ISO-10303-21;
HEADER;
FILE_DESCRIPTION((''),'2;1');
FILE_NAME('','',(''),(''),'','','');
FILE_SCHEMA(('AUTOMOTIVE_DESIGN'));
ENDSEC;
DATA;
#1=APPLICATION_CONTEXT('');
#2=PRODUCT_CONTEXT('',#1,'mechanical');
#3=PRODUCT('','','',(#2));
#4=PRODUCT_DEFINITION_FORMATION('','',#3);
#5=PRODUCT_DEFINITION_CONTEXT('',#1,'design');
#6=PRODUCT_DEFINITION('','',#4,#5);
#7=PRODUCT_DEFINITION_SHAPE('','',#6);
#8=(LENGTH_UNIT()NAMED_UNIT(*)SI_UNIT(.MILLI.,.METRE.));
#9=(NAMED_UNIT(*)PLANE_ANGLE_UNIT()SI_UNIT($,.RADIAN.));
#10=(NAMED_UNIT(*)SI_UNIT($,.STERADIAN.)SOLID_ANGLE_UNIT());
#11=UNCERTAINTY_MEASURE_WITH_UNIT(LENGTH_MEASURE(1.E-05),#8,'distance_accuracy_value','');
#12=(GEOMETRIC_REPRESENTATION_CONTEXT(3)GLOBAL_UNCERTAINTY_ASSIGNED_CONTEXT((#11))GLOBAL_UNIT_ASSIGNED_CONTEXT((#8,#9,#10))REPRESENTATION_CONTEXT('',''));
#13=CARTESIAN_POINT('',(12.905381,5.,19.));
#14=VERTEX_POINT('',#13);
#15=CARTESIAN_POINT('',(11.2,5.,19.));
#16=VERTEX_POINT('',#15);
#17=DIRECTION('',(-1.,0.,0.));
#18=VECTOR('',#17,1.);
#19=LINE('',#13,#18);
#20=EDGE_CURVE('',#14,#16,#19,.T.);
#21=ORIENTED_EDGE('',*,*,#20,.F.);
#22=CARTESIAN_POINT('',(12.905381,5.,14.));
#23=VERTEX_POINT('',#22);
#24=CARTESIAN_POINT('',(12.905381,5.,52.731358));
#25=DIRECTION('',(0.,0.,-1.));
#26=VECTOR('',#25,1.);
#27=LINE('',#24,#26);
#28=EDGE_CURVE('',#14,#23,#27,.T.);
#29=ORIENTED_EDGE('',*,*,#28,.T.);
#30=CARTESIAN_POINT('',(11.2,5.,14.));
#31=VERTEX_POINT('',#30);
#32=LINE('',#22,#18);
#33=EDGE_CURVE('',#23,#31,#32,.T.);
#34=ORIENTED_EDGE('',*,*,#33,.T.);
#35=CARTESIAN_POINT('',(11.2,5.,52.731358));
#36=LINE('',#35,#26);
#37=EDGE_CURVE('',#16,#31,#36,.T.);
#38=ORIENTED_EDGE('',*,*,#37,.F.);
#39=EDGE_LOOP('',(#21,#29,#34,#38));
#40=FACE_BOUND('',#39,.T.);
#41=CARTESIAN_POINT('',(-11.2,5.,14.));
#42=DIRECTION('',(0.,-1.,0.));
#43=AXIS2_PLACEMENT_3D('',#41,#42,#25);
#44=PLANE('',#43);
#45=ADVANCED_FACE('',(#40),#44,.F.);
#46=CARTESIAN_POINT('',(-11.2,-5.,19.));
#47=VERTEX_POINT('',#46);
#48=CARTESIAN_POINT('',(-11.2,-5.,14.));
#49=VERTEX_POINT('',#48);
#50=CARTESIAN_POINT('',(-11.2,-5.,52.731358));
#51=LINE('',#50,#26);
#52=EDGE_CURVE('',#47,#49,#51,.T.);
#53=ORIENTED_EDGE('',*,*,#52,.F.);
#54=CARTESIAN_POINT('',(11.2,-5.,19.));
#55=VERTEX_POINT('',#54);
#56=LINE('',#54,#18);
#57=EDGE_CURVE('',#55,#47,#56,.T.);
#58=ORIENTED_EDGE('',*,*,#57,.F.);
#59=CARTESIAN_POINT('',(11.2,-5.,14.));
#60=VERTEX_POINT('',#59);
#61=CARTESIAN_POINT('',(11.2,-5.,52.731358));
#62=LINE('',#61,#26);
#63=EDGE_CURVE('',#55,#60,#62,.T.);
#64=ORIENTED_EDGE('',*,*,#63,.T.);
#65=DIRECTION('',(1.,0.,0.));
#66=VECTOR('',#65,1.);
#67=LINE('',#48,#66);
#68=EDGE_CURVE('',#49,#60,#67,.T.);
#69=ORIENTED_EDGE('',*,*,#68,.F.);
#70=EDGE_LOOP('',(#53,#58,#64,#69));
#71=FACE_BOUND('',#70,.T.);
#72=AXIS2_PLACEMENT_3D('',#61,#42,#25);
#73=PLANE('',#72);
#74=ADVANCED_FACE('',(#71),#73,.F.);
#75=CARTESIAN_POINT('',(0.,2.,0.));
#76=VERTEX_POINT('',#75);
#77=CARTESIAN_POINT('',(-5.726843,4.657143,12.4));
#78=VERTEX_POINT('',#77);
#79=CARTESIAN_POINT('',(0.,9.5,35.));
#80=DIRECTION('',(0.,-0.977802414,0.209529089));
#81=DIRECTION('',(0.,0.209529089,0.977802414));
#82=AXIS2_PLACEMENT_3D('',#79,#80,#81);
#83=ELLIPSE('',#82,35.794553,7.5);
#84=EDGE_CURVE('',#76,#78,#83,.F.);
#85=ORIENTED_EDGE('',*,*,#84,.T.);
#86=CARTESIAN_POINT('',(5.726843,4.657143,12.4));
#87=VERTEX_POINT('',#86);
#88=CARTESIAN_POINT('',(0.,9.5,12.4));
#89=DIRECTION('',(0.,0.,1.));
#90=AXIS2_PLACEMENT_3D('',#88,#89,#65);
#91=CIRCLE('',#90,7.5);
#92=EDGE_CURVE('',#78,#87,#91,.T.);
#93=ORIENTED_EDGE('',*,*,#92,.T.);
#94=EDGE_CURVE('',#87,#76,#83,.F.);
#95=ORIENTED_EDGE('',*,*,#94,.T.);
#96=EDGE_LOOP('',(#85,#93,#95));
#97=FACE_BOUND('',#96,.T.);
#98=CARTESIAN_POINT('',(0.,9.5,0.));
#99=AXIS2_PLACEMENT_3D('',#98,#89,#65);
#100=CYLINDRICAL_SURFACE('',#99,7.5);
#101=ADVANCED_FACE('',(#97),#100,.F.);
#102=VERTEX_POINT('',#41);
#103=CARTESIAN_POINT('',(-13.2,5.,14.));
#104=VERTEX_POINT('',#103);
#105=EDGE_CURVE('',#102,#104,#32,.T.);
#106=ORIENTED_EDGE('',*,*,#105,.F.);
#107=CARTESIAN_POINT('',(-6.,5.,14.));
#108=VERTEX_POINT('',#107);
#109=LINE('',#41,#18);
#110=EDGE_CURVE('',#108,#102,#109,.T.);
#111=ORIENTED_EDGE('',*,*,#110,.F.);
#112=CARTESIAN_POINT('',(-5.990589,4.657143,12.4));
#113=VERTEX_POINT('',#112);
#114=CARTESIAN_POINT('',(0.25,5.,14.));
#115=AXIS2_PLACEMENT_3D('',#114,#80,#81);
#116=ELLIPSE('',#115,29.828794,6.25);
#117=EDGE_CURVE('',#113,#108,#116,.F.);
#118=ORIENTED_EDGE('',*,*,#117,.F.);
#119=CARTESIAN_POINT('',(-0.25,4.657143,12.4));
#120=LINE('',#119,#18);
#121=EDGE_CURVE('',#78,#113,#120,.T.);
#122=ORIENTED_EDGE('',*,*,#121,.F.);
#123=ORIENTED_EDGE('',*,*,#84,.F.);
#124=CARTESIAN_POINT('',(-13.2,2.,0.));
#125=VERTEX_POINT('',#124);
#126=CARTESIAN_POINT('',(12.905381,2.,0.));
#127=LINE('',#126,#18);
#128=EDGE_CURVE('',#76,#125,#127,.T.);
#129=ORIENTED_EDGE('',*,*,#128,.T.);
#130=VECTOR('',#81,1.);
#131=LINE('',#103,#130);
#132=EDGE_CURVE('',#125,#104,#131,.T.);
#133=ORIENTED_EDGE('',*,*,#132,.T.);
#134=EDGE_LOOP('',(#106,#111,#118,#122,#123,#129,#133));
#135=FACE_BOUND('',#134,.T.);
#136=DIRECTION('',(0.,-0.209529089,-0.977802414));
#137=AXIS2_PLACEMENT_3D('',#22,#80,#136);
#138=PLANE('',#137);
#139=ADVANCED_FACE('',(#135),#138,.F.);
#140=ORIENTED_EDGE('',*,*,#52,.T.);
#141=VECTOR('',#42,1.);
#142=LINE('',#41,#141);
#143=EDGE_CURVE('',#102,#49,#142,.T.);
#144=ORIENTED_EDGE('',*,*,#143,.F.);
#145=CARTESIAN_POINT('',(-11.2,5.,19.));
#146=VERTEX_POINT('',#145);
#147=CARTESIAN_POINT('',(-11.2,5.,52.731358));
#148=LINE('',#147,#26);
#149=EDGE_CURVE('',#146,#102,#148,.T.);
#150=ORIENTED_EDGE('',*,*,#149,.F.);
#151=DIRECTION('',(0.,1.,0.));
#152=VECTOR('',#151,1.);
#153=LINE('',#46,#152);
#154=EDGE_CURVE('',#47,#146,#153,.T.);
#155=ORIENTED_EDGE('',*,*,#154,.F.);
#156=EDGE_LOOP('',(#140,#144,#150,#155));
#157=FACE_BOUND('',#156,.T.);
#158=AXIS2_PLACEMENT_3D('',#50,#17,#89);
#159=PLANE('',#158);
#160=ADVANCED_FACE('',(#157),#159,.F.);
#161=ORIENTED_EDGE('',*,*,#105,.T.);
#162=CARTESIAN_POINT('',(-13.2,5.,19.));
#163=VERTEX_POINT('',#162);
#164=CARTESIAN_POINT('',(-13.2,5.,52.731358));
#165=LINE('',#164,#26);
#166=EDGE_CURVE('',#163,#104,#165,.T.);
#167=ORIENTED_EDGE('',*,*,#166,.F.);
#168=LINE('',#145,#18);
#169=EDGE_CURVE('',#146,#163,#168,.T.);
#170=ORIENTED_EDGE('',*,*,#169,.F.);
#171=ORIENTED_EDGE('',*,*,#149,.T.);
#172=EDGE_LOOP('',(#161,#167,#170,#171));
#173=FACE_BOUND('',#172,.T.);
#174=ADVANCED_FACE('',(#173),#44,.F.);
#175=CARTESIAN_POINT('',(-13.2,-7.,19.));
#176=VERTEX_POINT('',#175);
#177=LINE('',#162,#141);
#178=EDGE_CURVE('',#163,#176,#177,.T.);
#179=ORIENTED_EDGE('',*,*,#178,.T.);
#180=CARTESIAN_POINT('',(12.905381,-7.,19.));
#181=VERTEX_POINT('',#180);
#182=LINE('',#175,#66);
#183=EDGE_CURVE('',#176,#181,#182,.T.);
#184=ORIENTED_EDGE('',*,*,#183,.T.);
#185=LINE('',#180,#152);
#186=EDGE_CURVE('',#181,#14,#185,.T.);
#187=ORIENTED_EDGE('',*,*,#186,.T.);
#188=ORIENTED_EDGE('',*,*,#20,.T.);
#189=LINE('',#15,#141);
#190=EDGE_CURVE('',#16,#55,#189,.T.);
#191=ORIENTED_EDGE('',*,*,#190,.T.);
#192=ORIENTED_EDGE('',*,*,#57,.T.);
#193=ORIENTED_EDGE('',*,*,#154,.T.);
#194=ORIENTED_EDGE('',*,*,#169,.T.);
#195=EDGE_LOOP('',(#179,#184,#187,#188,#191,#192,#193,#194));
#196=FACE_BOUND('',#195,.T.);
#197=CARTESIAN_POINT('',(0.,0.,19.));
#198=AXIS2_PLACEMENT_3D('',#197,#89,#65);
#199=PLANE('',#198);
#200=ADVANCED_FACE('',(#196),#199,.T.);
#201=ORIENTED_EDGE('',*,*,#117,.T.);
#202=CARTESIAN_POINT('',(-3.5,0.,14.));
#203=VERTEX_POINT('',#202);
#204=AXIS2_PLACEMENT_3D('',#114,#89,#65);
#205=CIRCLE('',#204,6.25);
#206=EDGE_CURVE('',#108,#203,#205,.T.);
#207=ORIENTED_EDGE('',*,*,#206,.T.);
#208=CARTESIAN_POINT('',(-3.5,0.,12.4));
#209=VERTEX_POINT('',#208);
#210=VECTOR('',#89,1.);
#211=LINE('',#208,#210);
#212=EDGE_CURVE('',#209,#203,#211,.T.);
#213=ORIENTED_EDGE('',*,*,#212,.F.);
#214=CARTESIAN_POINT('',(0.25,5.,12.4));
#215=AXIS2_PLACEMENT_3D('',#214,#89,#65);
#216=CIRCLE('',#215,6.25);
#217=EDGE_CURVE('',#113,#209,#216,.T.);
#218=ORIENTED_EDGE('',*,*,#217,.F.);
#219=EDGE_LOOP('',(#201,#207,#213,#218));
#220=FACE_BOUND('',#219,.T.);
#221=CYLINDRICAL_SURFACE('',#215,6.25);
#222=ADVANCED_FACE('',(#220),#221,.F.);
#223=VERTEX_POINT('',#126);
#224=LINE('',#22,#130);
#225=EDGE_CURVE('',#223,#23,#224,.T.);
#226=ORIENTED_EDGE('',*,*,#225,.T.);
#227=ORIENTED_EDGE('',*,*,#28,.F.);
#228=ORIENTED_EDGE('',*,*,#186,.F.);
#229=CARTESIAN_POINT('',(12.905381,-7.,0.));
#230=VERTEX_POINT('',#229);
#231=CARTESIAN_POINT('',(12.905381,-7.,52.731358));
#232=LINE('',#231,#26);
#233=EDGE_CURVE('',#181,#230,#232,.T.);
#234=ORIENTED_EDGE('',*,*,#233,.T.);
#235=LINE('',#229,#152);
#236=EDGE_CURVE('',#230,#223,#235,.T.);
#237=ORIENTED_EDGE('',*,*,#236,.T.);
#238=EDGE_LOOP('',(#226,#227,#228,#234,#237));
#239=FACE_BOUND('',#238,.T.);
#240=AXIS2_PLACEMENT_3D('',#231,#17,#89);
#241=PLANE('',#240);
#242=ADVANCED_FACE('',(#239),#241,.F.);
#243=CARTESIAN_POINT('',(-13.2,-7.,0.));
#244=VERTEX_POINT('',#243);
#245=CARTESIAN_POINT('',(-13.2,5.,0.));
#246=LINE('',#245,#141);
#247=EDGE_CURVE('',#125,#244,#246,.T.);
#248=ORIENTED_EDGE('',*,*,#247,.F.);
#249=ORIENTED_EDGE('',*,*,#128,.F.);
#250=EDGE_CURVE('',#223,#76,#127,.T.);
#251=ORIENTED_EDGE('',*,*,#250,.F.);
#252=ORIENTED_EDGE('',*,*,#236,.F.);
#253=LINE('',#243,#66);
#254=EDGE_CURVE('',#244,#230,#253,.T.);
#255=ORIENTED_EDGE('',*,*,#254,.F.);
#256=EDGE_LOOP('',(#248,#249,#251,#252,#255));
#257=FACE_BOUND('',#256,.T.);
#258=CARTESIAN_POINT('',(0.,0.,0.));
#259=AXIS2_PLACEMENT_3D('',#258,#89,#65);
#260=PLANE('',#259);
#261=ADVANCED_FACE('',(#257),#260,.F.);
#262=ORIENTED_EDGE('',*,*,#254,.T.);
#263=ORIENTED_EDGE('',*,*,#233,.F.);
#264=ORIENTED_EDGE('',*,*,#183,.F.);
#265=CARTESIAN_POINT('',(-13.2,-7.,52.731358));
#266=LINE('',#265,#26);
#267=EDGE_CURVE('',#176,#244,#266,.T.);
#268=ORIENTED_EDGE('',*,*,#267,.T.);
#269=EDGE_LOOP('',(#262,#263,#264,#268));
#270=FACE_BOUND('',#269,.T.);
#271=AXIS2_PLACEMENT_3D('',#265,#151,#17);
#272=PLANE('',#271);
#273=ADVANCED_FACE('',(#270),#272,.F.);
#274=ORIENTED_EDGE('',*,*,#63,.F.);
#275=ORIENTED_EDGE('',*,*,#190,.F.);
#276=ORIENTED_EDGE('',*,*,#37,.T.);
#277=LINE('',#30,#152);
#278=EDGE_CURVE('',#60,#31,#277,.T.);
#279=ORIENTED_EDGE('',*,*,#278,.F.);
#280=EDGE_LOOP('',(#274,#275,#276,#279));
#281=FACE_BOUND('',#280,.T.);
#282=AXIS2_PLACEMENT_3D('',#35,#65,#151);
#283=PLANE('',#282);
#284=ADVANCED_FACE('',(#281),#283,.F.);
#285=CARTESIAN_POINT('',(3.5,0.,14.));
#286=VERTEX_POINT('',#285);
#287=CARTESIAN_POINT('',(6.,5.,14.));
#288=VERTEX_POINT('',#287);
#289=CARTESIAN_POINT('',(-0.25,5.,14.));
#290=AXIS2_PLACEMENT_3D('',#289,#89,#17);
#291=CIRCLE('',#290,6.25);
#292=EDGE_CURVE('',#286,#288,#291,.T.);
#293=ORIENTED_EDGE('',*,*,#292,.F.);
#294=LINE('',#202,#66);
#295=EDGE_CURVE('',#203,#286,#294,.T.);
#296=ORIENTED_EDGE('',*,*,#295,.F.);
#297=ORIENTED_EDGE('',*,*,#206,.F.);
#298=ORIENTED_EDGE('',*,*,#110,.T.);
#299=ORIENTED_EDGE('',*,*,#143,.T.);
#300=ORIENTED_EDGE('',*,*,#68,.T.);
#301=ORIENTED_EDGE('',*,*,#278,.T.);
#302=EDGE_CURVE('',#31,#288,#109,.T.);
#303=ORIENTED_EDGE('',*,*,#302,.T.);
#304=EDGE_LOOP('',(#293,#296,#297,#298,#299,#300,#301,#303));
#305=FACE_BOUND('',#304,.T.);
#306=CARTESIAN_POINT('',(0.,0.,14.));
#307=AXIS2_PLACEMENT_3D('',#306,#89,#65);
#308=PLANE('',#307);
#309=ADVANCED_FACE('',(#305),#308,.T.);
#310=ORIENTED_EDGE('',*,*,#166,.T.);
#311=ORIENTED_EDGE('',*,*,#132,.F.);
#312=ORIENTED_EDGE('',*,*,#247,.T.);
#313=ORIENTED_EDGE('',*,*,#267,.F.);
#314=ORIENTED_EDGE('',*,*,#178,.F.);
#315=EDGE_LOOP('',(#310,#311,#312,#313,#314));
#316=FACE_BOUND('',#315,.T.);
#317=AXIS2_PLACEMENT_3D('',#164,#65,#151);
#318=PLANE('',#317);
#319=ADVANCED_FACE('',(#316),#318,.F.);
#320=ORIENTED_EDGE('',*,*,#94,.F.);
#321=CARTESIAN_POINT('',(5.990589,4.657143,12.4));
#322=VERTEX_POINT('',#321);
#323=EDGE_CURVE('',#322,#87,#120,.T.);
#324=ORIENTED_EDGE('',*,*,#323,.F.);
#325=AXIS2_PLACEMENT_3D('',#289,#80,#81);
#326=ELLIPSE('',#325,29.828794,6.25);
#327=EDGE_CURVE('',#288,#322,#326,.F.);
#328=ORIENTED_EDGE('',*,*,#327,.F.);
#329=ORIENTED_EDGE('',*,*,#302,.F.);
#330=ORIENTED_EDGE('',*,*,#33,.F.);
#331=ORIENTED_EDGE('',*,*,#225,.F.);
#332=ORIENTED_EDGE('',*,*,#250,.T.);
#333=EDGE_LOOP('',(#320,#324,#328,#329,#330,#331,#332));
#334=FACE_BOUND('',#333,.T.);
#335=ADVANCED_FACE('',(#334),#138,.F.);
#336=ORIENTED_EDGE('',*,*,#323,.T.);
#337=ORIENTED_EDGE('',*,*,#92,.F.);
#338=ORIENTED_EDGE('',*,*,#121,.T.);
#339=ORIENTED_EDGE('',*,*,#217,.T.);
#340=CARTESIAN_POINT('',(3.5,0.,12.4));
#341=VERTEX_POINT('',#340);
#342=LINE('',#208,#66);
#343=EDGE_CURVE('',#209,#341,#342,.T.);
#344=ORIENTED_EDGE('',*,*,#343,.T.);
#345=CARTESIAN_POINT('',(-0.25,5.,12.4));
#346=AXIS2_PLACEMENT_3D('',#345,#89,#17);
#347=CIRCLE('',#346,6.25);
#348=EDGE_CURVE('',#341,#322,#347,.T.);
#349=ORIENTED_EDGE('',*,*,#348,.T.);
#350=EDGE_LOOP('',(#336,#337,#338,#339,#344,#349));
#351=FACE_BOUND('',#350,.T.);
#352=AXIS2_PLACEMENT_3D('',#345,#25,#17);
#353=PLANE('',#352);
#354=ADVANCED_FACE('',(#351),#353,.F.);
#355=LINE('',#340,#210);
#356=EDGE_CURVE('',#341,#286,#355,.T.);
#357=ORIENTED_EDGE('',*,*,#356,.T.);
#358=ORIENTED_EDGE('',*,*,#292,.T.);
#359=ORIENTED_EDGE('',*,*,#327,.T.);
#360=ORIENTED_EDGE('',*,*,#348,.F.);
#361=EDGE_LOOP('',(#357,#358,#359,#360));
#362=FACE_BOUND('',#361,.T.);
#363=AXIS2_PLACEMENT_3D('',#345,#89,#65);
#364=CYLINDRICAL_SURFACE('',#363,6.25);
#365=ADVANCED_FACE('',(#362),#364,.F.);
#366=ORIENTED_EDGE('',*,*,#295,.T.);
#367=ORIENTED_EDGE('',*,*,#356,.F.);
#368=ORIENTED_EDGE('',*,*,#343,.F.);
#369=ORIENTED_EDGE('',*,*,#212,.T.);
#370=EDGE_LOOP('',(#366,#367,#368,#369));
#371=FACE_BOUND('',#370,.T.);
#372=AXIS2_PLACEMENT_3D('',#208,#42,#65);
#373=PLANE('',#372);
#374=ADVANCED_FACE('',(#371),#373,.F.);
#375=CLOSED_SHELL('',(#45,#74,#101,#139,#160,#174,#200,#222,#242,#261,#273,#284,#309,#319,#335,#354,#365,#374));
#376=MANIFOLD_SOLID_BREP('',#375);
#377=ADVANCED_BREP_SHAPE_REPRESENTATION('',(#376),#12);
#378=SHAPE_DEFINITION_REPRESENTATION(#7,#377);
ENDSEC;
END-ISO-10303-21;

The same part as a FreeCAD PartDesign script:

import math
import FreeCAD as App
import Part
import Sketcher

V = App.Vector
Q = App.Units.Quantity

doc = App.newDocument("Part")
body = doc.addObject("PartDesign::Body", "Body")

sketch1 = doc.addObject("Sketcher::SketchObject", "Sketch")
body.addObject(sketch1)
sketch1.AttachmentSupport = (doc.XY_Plane, [""])
sketch1.MapMode = "FlatFace"
sketch1.addGeometry([
    Part.LineSegment(V(-11, 5, 0), V(-11, -5, 0)),
    Part.LineSegment(V(-11, -5, 0), V(11, -5, 0)),
    Part.LineSegment(V(11, -5, 0), V(11, 5, 0)),
    Part.LineSegment(V(11, 5, 0), V(-11, 5, 0)),
], False)
sketch1.addConstraint([
    Sketcher.Constraint("Coincident", 0, 2, 1, 1),
    Sketcher.Constraint("Coincident", 1, 2, 2, 1),
    Sketcher.Constraint("Coincident", 2, 2, 3, 1),
    Sketcher.Constraint("Coincident", 3, 2, 0, 1),
    Sketcher.Constraint("Vertical", 0),
    Sketcher.Constraint("Horizontal", 1),
    Sketcher.Constraint("Vertical", 2),
    Sketcher.Constraint("Horizontal", 3),
    Sketcher.Constraint("Symmetric", 0, 2, 2, 2, -1, 1),
    Sketcher.Constraint("DistanceY", 0, 2, 0, 1, Q("10 mm")),
    Sketcher.Constraint("DistanceX", 1, 1, 1, 2, Q("22.4 mm")),
])
pad1 = doc.addObject("PartDesign::Pad", "Pad")
body.addObject(pad1)
pad1.Profile = sketch1
pad1.Length = 14

sketch2 = doc.addObject("Sketcher::SketchObject", "Sketch001")
body.addObject(sketch2)
sketch2.AttachmentSupport = (doc.XY_Plane, [""])
sketch2.MapMode = "FlatFace"
sketch2.AttachmentOffset = App.Placement(V(0, 0, 14), App.Rotation())
sketch2.addGeometry([
    Part.LineSegment(V(6, 5, 0), V(-6, 5, 0)),
    Part.ArcOfCircle(Part.Circle(V(0, 5, 0), V(0, 0, 1), 6), math.radians(180), math.radians(233)),
    Part.LineSegment(V(-4, 0, 0), V(4, 0, 0)),
    Part.ArcOfCircle(Part.Circle(V(0, 5, 0), V(0, 0, 1), 6), math.radians(-53), math.radians(0)),
], False)
sketch2.addConstraint([
    Sketcher.Constraint("Coincident", 0, 2, 1, 1),
    Sketcher.Constraint("Coincident", 1, 2, 2, 1),
    Sketcher.Constraint("Coincident", 2, 2, 3, 1),
    Sketcher.Constraint("Coincident", 3, 2, 0, 1),
    Sketcher.Constraint("Horizontal", 0),
    Sketcher.Constraint("Horizontal", 2),
    Sketcher.Constraint("Equal", 1, 3),
    Sketcher.Constraint("Symmetric", 1, 2, 2, 2, -1, 1),
    Sketcher.Constraint("Horizontal", 1, 3, 3, 3),
    Sketcher.Constraint("Horizontal", 3, 3, 0, 2),
    Sketcher.Constraint("DistanceX", 0, 2, 0, 1, Q("12 mm")),
    Sketcher.Constraint("DistanceX", 2, 1, 2, 2, Q("7 mm")),
    Sketcher.Constraint("Radius", 1, Q("6.25 mm")),
])
pocket1 = doc.addObject("PartDesign::Pocket", "Pocket")
body.addObject(pocket1)
pocket1.Profile = sketch2
pocket1.Length = 1.6

sketch3 = doc.addObject("Sketcher::SketchObject", "Sketch002")
body.addObject(sketch3)
sketch3.AttachmentSupport = (doc.XY_Plane, [""])
sketch3.MapMode = "FlatFace"
sketch3.AttachmentOffset = App.Placement(V(0, 0, 12.4), App.Rotation())
sketch3.addGeometry([
    Part.LineSegment(V(6, 5, 0), V(-6, 5, 0)),
    Part.ArcOfCircle(Part.Circle(V(0, 10, 0), V(0, 0, 1), 8), math.radians(-143), math.radians(-37)),
], False)
sketch3.addConstraint([
    Sketcher.Constraint("Coincident", 0, 1, 1, 2),
    Sketcher.Constraint("Coincident", 1, 1, 0, 2),
    Sketcher.Constraint("Horizontal", 0),
    Sketcher.Constraint("PointOnObject", 1, 3, -2),
    Sketcher.Constraint("Radius", 1, Q("7.5 mm")),
    Sketcher.Constraint("DistanceX", 0, 2, 0, 1, Q("12 mm")),
    Sketcher.Constraint("DistanceY", -1, 1, 0, 1, Q("5 mm")),
])
pocket2 = doc.addObject("PartDesign::Pocket", "Pocket001")
body.addObject(pocket2)
pocket2.Profile = sketch3
pocket2.Type = "ThroughAll"

sketch4 = doc.addObject("Sketcher::SketchObject", "Sketch003")
body.addObject(sketch4)
sketch4.AttachmentSupport = (doc.XY_Plane, [""])
sketch4.MapMode = "FlatFace"
sketch4.addGeometry([
    Part.LineSegment(V(-11.2, 5, 0), V(-13.2, 5, 0)),
    Part.LineSegment(V(-13.2, 5, 0), V(-13.2, -7, 0)),
    Part.LineSegment(V(-13.2, -7, 0), V(12.9, -7, 0)),
    Part.LineSegment(V(12.9, -7, 0), V(12.9, 5, 0)),
    Part.LineSegment(V(12.9, 5, 0), V(11.2, 5, 0)),
    Part.LineSegment(V(11.2, 5, 0), V(11.2, -5, 0)),
    Part.LineSegment(V(11.2, -5, 0), V(-11.2, -5, 0)),
    Part.LineSegment(V(-11.2, -5, 0), V(-11.2, 5, 0)),
], False)
sketch4.addConstraint([
    Sketcher.Constraint("Coincident", 0, 2, 1, 1),
    Sketcher.Constraint("Coincident", 1, 2, 2, 1),
    Sketcher.Constraint("Coincident", 2, 2, 3, 1),
    Sketcher.Constraint("Coincident", 3, 2, 4, 1),
    Sketcher.Constraint("Coincident", 4, 2, 5, 1),
    Sketcher.Constraint("Coincident", 5, 2, 6, 1),
    Sketcher.Constraint("Coincident", 6, 2, 7, 1),
    Sketcher.Constraint("Coincident", 7, 2, 0, 1),
    Sketcher.Constraint("Horizontal", 0),
    Sketcher.Constraint("Vertical", 1),
    Sketcher.Constraint("Horizontal", 2),
    Sketcher.Constraint("Vertical", 3),
    Sketcher.Constraint("Horizontal", 4),
    Sketcher.Constraint("Vertical", 5),
    Sketcher.Constraint("Horizontal", 6),
    Sketcher.Constraint("Vertical", 7),
    Sketcher.Constraint("Symmetric", 4, 2, 6, 2, -1, 1),
    Sketcher.Constraint("Horizontal", 0, 2, 3, 2),
    Sketcher.Constraint("DistanceX", 0, 2, 0, 1, Q("2 mm")),
    Sketcher.Constraint("DistanceY", 1, 2, 1, 1, Q("12 mm")),
    Sketcher.Constraint("DistanceY", 5, 2, 5, 1, Q("10 mm")),
    Sketcher.Constraint("DistanceX", 6, 2, 6, 1, Q("22.4 mm")),
    Sketcher.Constraint("DistanceX", 2, 1, 2, 2, Q("26.105381 mm")),
])
pad2 = doc.addObject("PartDesign::Pad", "Pad001")
body.addObject(pad2)
pad2.Profile = sketch4
pad2.Length = 19

sketch5 = doc.addObject("Sketcher::SketchObject", "Sketch004")
body.addObject(sketch5)
sketch5.AttachmentSupport = (doc.YZ_Plane, [""])
sketch5.MapMode = "FlatFace"
sketch5.AttachmentOffset = App.Placement(V(0, 0, -13.2), App.Rotation())
sketch5.addGeometry([
    Part.LineSegment(V(5, 14, 0), V(5, 0, 0)),
    Part.LineSegment(V(5, 0, 0), V(2, 0, 0)),
    Part.LineSegment(V(2, 0, 0), V(5, 14, 0)),
], False)
sketch5.addConstraint([
    Sketcher.Constraint("Coincident", 0, 2, 1, 1),
    Sketcher.Constraint("Coincident", 1, 2, 2, 1),
    Sketcher.Constraint("Coincident", 2, 2, 0, 1),
    Sketcher.Constraint("Vertical", 0),
    Sketcher.Constraint("Horizontal", 1),
    Sketcher.Constraint("PointOnObject", 0, 2, -1),
    Sketcher.Constraint("DistanceX", 1, 2, 1, 1, Q("3 mm")),
    Sketcher.Constraint("DistanceY", 0, 2, 0, 1, Q("14 mm")),
    Sketcher.Constraint("DistanceX", -1, 1, 0, 2, Q("5 mm")),
])
pocket3 = doc.addObject("PartDesign::Pocket", "Pocket002")
body.addObject(pocket3)
pocket3.Profile = sketch5
pocket3.Type = "ThroughAll"
pocket3.Reversed = True

doc.recompute()
